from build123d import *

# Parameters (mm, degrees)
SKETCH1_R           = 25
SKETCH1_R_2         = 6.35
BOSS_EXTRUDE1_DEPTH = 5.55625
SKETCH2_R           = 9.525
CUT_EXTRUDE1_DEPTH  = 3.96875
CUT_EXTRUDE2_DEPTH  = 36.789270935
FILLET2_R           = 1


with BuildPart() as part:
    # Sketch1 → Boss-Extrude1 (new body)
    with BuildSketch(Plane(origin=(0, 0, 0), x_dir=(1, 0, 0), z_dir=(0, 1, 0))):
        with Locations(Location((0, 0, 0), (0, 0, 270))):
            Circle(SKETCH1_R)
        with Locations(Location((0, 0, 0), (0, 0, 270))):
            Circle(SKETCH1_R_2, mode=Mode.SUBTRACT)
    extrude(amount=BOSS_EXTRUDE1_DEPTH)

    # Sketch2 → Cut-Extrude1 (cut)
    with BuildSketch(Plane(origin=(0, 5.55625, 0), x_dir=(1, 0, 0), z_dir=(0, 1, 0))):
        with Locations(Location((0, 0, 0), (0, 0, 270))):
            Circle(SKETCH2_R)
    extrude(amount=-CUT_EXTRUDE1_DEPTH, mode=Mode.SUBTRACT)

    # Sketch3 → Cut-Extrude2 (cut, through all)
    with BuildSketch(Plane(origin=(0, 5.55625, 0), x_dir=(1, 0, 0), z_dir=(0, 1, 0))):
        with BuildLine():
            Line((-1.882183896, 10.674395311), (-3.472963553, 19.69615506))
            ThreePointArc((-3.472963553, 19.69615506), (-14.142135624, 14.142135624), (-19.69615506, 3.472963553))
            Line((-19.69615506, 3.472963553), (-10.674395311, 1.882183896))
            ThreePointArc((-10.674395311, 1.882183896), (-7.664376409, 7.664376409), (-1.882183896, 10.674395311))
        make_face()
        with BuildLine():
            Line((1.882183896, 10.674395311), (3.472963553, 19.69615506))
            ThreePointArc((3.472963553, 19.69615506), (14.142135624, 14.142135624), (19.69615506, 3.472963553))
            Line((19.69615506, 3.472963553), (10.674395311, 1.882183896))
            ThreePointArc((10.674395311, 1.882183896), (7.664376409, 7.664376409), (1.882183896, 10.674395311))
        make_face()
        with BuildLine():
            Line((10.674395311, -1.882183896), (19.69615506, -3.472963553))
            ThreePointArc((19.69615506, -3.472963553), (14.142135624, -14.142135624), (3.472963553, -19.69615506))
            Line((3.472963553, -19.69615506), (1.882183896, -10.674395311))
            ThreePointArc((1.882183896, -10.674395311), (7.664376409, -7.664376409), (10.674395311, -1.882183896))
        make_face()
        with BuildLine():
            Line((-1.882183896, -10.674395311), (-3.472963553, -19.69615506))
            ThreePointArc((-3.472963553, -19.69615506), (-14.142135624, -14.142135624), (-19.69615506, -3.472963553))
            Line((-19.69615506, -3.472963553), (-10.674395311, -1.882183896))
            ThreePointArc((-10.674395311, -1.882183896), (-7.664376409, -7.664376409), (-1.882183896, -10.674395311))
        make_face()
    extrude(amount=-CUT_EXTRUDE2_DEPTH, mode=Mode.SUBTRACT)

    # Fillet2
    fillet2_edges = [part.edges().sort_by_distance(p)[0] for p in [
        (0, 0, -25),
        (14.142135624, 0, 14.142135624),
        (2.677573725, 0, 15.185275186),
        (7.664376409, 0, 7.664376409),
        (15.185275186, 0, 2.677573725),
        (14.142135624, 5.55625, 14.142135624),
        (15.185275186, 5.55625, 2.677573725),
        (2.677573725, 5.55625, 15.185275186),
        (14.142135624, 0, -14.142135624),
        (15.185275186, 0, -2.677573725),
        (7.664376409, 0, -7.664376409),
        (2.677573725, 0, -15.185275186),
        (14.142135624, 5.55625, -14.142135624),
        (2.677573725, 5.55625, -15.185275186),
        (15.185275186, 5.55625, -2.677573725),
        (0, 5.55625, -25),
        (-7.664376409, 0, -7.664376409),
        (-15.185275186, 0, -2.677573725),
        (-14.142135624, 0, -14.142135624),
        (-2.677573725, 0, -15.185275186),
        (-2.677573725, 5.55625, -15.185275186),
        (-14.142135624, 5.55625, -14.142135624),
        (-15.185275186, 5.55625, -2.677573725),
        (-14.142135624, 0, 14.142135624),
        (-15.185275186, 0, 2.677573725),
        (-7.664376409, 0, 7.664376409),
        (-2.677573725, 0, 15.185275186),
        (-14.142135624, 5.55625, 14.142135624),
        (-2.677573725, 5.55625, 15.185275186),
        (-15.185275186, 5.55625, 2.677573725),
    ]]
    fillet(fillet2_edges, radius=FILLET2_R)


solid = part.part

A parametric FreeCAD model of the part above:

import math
import FreeCAD as App
import Part
import Sketcher

V = App.Vector
Q = App.Units.Quantity


def edges_at(feature, points):
    """Names of the edges that pass closest to the given points."""
    edges = feature.Shape.Edges
    near = lambda p: min(range(len(edges)), key=lambda i: edges[i].distToShape(Part.Vertex(*p))[0])
    return sorted({f"Edge{near(p) + 1}" for p in points})

doc = App.newDocument("Part")
params = doc.addObject("Spreadsheet::Sheet", "Params")
for row, (alias, value) in enumerate([
    ("sketch1_diameter", "0.5 in"),
    ("pad1_length", "0.21875 in"),
    ("sketch2_diameter", "0.75 in"),
    ("pocket1_length", "0.15625 in"),
    ("fillet_radius", "1 mm"),
], start=1):
    params.set(f"A{row}", alias)
    params.set(f"B{row}", "=" + value)
    params.setAlias(f"B{row}", alias)

body = doc.addObject("PartDesign::Body", "Body")

# Sketch on XZ plane
sketch1 = body.newObject("Sketcher::SketchObject", "Sketch")
sketch1.AttachmentSupport = (doc.getObject("XZ_Plane"), [""])
sketch1.MapMode = "FlatFace"
sketch1.addGeometry([
    Part.Circle(V(0, 0, 0), V(0, 0, 1), 25),
    Part.Circle(V(0, 0, 0), V(0, 0, 1), 6),
], False)
sketch1.addConstraint([
    Sketcher.Constraint("Coincident", 0, 3, -1, 1),
    Sketcher.Constraint("Coincident", 1, 3, -1, 1),
    Sketcher.Constraint("Diameter", 1, Q("0.5 in")),
    Sketcher.Constraint("Diameter", 0, Q("50 mm")),
])
sketch1.setExpression("Constraints[2]", "Params.sketch1_diameter")
pad1 = body.newObject("PartDesign::Pad", "Pad")
pad1.Profile = sketch1
pad1.setExpression("Length", "Params.pad1_length")
pad1.Reversed = True

# Sketch on XZ plane
sketch2 = body.newObject("Sketcher::SketchObject", "Sketch001")
sketch2.AttachmentSupport = (doc.getObject("XZ_Plane"), [""])
sketch2.MapMode = "FlatFace"
sketch2.AttachmentOffset = App.Placement(V(0, 0, -0.21875 * 25.4), App.Rotation())
sketch2.addGeometry(Part.Circle(V(0, 0, 0), V(0, 0, 1), 10), False)
sketch2.addConstraint([
    Sketcher.Constraint("Coincident", 0, 3, -1, 1),
    Sketcher.Constraint("Diameter", 0, Q("0.75 in")),
])
sketch2.setExpression("Constraints[1]", "Params.sketch2_diameter")
pocket1 = body.newObject("PartDesign::Pocket", "Pocket")
pocket1.Profile = sketch2
pocket1.setExpression("Length", "Params.pocket1_length")
pocket1.Reversed = True

# Sketch on XZ plane
sketch3 = body.newObject("Sketcher::SketchObject", "Sketch002")
sketch3.AttachmentSupport = (doc.getObject("XZ_Plane"), [""])
sketch3.MapMode = "FlatFace"
sketch3.AttachmentOffset = App.Placement(V(0, 0, -0.21875 * 25.4), App.Rotation())
sketch3.addGeometry([
    Part.LineSegment(V(-2, -11, 0), V(-3, -20, 0)),  # 0
    Part.ArcOfCircle(Part.Circle(V(0, 0, 0), V(0, 0, 1), 20), math.radians(-170), math.radians(-100)),  # 1
    Part.LineSegment(V(-20, -3, 0), V(-11, -2, 0)),  # 2
    Part.ArcOfCircle(Part.Circle(V(0, 0, 0), V(0, 0, 1), 11), math.radians(-170), math.radians(-100)),  # 3
    Part.LineSegment(V(3, -20, 0), V(2, -11, 0)),  # 4
    Part.ArcOfCircle(Part.Circle(V(0, 0, 0), V(0, 0, 1), 11), math.radians(-80), math.radians(-10)),  # 5
    Part.LineSegment(V(11, -2, 0), V(20, -3, 0)),  # 6
    Part.ArcOfCircle(Part.Circle(V(0, 0, 0), V(0, 0, 1), 20), math.radians(-80), math.radians(-10)),  # 7
    Part.LineSegment(V(20, 3, 0), V(11, 2, 0)),  # 8
    Part.ArcOfCircle(Part.Circle(V(0, 0, 0), V(0, 0, 1), 11), math.radians(10), math.radians(80)),  # 9
    Part.LineSegment(V(2, 11, 0), V(3, 20, 0)),  # 10
    Part.ArcOfCircle(Part.Circle(V(0, 0, 0), V(0, 0, 1), 20), math.radians(10), math.radians(80)),  # 11
    Part.LineSegment(V(-3, 20, 0), V(-2, 11, 0)),  # 12
    Part.ArcOfCircle(Part.Circle(V(0, 0, 0), V(0, 0, 1), 11), math.radians(100), math.radians(170)),  # 13
    Part.LineSegment(V(-11, 2, 0), V(-20, 3, 0)),  # 14
    Part.ArcOfCircle(Part.Circle(V(0, 0, 0), V(0, 0, 1), 20), math.radians(100), math.radians(170)),  # 15
], False)
sketch3.addConstraint([
    Sketcher.Constraint("Coincident", 0, 2, 1, 2),
    Sketcher.Constraint("Coincident", 1, 1, 2, 1),
    Sketcher.Constraint("Coincident", 2, 2, 3, 1),
    Sketcher.Constraint("Coincident", 3, 2, 0, 1),
    Sketcher.Constraint("Coincident", 4, 2, 5, 1),
    Sketcher.Constraint("Coincident", 5, 2, 6, 1),
    Sketcher.Constraint("Coincident", 6, 2, 7, 2),
    Sketcher.Constraint("Coincident", 7, 1, 4, 1),
    Sketcher.Constraint("Coincident", 8, 2, 9, 1),
    Sketcher.Constraint("Coincident", 9, 2, 10, 1),
    Sketcher.Constraint("Coincident", 10, 2, 11, 2),
    Sketcher.Constraint("Coincident", 11, 1, 8, 1),
    Sketcher.Constraint("Coincident", 12, 2, 13, 1),
    Sketcher.Constraint("Coincident", 13, 2, 14, 1),
    Sketcher.Constraint("Coincident", 14, 2, 15, 2),
    Sketcher.Constraint("Coincident", 15, 1, 12, 1),
    Sketcher.Constraint("Coincident", 1, 3, -1, 1),
    Sketcher.Constraint("Coincident", 3, 3, -1, 1),
    Sketcher.Constraint("Coincident", 5, 3, -1, 1),
    Sketcher.Constraint("Coincident", 7, 3, -1, 1),
    Sketcher.Constraint("Coincident", 9, 3, -1, 1),
    Sketcher.Constraint("Coincident", 11, 3, -1, 1),
    Sketcher.Constraint("Coincident", 13, 3, -1, 1),
    Sketcher.Constraint("Coincident", 15, 3, -1, 1),
    Sketcher.Constraint("Equal", 3, 5),
    Sketcher.Constraint("Equal", 1, 7),
    Sketcher.Constraint("Equal", 5, 9),
    Sketcher.Constraint("Equal", 7, 11),
    Sketcher.Constraint("Equal", 9, 13),
    Sketcher.Constraint("Equal", 11, 15),
    Sketcher.Constraint("Perpendicular", 2, 4),
    Sketcher.Constraint("Perpendicular", 0, 6),
    Sketcher.Constraint("Perpendicular", 4, 8),
    Sketcher.Constraint("Perpendicular", 6, 10),
    Sketcher.Constraint("Perpendicular", 8, 12),
    Sketcher.Constraint("Perpendicular", 10, 14),
    Sketcher.Constraint("Horizontal", 3, 2, 4, 2),
    Sketcher.Constraint("Horizontal", 2, 2, 5, 2),
    Sketcher.Constraint("Horizontal", 1, 1, 6, 2),
    Sketcher.Constraint("Horizontal", 9, 2, 12, 2),
    Sketcher.Constraint("Horizontal", 8, 2, 13, 2),
    Sketcher.Constraint("Vertical", 5, 2, 8, 2),
    Sketcher.Constraint("Vertical", 4, 2, 9, 2),
    Sketcher.Constraint("Angle", 0, Q("-100 deg")),
    Sketcher.Constraint("Radius", 1, Q("20 mm")),
    Sketcher.Constraint("Radius", 3, Q("10.839065 mm")),
    Sketcher.Constraint("DistanceX", 4, 2, 6, 2, Q("17.813971 mm")),
    Sketcher.Constraint("DistanceY", 4, 2, 6, 2, Q("7.201432 mm")),
])
pocket2 = body.newObject("PartDesign::Pocket", "Pocket001")
pocket2.Profile = sketch3
pocket2.Type = "ThroughAll"
pocket2.Reversed = True
doc.recompute()

fillet = body.newObject("PartDesign::Fillet", "Fillet")
fillet.Base = (pocket2, edges_at(pocket2, [
    (0, 0, -25),
    (14.142, 0, 14.142),
    (2.678, 0, 15.185),
    (7.664, 0, 7.664),
    (15.185, 0, 2.678),
    (14.142, 5.556, 14.142),
    (15.185, 5.556, 2.678),
    (2.678, 5.556, 15.185),
    (14.142, 0, -14.142),
    (15.185, 0, -2.678),
    (7.664, 0, -7.664),
    (2.678, 0, -15.185),
    (14.142, 5.556, -14.142),
    (2.678, 5.556, -15.185),
    (15.185, 5.556, -2.678),
    (0, 5.556, -25),
    (-7.664, 0, -7.664),
    (-15.185, 0, -2.678),
    (-14.142, 0, -14.142),
    (-2.678, 0, -15.185),
    (-2.678, 5.556, -15.185),
    (-14.142, 5.556, -14.142),
    (-15.185, 5.556, -2.678),
    (-14.142, 0, 14.142),
    (-15.185, 0, 2.678),
    (-7.664, 0, 7.664),
    (-2.678, 0, 15.185),
    (-14.142, 5.556, 14.142),
    (-2.678, 5.556, 15.185),
    (-15.185, 5.556, 2.678),
]))
fillet.setExpression("Radius", "Params.fillet_radius")

doc.recompute()
